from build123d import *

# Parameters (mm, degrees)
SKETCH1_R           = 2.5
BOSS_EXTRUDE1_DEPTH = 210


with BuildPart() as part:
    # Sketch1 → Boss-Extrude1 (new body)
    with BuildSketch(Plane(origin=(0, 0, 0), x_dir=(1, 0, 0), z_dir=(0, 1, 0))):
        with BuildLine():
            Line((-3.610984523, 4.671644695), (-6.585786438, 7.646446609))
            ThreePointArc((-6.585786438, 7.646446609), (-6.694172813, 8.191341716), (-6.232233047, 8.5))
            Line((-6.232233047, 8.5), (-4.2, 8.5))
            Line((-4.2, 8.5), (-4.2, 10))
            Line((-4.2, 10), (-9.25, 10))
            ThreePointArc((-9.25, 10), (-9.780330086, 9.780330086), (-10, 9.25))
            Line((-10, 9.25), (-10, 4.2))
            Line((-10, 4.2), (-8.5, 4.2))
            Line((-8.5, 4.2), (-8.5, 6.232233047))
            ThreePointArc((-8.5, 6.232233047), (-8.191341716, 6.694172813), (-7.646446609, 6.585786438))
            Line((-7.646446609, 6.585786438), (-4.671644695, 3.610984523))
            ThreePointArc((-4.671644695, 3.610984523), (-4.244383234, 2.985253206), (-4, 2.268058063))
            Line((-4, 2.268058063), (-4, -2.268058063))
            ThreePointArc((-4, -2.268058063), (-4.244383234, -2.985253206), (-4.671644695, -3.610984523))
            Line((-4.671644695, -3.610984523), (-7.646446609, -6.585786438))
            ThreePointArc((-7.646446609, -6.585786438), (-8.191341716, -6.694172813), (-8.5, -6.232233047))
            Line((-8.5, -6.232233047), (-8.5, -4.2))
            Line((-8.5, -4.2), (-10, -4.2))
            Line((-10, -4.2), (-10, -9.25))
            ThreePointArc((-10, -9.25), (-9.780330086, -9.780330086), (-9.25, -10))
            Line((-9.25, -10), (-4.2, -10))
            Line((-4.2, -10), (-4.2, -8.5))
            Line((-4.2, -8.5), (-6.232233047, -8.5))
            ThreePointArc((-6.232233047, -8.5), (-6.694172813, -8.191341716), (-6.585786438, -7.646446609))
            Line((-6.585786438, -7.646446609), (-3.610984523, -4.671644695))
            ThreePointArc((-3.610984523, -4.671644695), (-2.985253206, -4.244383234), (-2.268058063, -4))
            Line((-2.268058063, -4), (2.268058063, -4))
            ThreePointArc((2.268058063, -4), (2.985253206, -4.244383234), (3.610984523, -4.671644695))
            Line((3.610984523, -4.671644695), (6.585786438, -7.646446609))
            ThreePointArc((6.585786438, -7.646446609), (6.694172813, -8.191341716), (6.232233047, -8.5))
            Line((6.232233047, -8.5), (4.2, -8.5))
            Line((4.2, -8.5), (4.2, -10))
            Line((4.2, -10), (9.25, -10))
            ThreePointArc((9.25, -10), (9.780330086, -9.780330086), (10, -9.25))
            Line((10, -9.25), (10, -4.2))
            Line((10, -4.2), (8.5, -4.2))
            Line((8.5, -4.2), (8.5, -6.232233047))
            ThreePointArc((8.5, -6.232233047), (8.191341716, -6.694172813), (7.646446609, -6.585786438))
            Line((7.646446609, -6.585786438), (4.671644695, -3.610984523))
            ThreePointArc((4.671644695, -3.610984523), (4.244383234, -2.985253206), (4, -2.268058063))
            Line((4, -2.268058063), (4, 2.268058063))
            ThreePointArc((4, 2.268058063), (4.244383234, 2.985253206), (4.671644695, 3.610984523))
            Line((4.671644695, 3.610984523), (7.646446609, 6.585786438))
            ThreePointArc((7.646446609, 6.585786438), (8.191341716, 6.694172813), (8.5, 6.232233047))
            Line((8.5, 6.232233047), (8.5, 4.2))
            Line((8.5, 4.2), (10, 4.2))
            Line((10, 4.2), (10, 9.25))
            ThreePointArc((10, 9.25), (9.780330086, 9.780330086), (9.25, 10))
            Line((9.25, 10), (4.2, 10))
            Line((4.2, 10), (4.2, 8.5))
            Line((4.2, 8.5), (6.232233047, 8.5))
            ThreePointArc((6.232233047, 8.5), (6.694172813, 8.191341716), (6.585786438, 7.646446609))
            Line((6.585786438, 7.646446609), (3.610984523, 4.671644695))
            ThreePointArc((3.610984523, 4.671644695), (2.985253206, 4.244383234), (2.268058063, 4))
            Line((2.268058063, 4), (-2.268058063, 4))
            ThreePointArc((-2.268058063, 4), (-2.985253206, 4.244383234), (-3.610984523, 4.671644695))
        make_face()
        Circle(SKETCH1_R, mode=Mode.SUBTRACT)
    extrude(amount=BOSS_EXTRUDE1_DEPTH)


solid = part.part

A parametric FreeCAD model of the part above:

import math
import FreeCAD as App
import Part
import Sketcher
Q = App.Units.Quantity

doc = App.newDocument("Part")
body = doc.addObject("PartDesign::Body", "Body")

sketch1 = body.newObject("Sketcher::SketchObject", "Sketch")
sketch1.AttachmentSupport = (doc.getObject("XZ_Plane"), [""])
sketch1.MapMode = "FlatFace"
sketch1.addGeometry([
    Part.LineSegment(App.Vector(-3.610985, -4.671645, 0), App.Vector(-6.585786, -7.646447, 0)),
    Part.ArcOfCircle(Part.Circle(App.Vector(-6.232233, -8, 0), App.Vector(0, 0, 1), 0.5), math.radians(135), math.radians(270)),
    Part.LineSegment(App.Vector(-6.232233, -8.5, 0), App.Vector(-4.2, -8.5, 0)),
    Part.LineSegment(App.Vector(-4.2, -8.5, 0), App.Vector(-4.2, -10, 0)),
    Part.LineSegment(App.Vector(-4.2, -10, 0), App.Vector(-9.25, -10, 0)),
    Part.ArcOfCircle(Part.Circle(App.Vector(-9.25, -9.25, 0), App.Vector(0, 0, 1), 0.75), math.radians(180), math.radians(270)),
    Part.LineSegment(App.Vector(-10, -9.25, 0), App.Vector(-10, -4.2, 0)),
    Part.LineSegment(App.Vector(-10, -4.2, 0), App.Vector(-8.5, -4.2, 0)),
    Part.LineSegment(App.Vector(-8.5, -4.2, 0), App.Vector(-8.5, -6.232233, 0)),
    Part.ArcOfCircle(Part.Circle(App.Vector(-8, -6.232233, 0), App.Vector(0, 0, 1), 0.5), math.radians(-180), math.radians(-45)),
    Part.LineSegment(App.Vector(-7.646447, -6.585786, 0), App.Vector(-4.671645, -3.610985, 0)),
    Part.ArcOfCircle(Part.Circle(App.Vector(-6.755475, -1.729368, 0), App.Vector(0, 0, 1), 2.807638), math.radians(-42.080792), math.radians(-11.061698)),
    Part.LineSegment(App.Vector(-4, -2.268058, 0), App.Vector(-4, 2.268058, 0)),
    Part.ArcOfCircle(Part.Circle(App.Vector(-6.755475, 1.729368, 0), App.Vector(0, 0, 1), 2.807638), math.radians(11.061698), math.radians(42.080792)),
    Part.LineSegment(App.Vector(-4.671645, 3.610985, 0), App.Vector(-7.646447, 6.585786, 0)),
    Part.ArcOfCircle(Part.Circle(App.Vector(-8, 6.232233, 0), App.Vector(0, 0, 1), 0.5), math.radians(45), math.radians(180)),
    Part.LineSegment(App.Vector(-8.5, 6.232233, 0), App.Vector(-8.5, 4.2, 0)),
    Part.LineSegment(App.Vector(-8.5, 4.2, 0), App.Vector(-10, 4.2, 0)),
    Part.LineSegment(App.Vector(-10, 4.2, 0), App.Vector(-10, 9.25, 0)),
    Part.ArcOfCircle(Part.Circle(App.Vector(-9.25, 9.25, 0), App.Vector(0, 0, 1), 0.75), math.radians(90), math.radians(180)),
    Part.LineSegment(App.Vector(-9.25, 10, 0), App.Vector(-4.2, 10, 0)),
    Part.LineSegment(App.Vector(-4.2, 10, 0), App.Vector(-4.2, 8.5, 0)),
    Part.LineSegment(App.Vector(-4.2, 8.5, 0), App.Vector(-6.232233, 8.5, 0)),
    Part.ArcOfCircle(Part.Circle(App.Vector(-6.232233, 8, 0), App.Vector(0, 0, 1), 0.5), math.radians(90), math.radians(225)),
    Part.LineSegment(App.Vector(-6.585786, 7.646447, 0), App.Vector(-3.610985, 4.671645, 0)),
    Part.ArcOfCircle(Part.Circle(App.Vector(-1.729368, 6.755475, 0), App.Vector(0, 0, 1), 2.807638), math.radians(-132.080792), math.radians(-101.061698)),
    Part.LineSegment(App.Vector(-2.268058, 4, 0), App.Vector(2.268058, 4, 0)),
    Part.ArcOfCircle(Part.Circle(App.Vector(1.729368, 6.755475, 0), App.Vector(0, 0, 1), 2.807638), math.radians(-78.938302), math.radians(-47.919208)),
    Part.LineSegment(App.Vector(3.610985, 4.671645, 0), App.Vector(6.585786, 7.646447, 0)),
    Part.ArcOfCircle(Part.Circle(App.Vector(6.232233, 8, 0), App.Vector(0, 0, 1), 0.5), math.radians(-45), math.radians(90)),
    Part.LineSegment(App.Vector(6.232233, 8.5, 0), App.Vector(4.2, 8.5, 0)),
    Part.LineSegment(App.Vector(4.2, 8.5, 0), App.Vector(4.2, 10, 0)),
    Part.LineSegment(App.Vector(4.2, 10, 0), App.Vector(9.25, 10, 0)),
    Part.ArcOfCircle(Part.Circle(App.Vector(9.25, 9.25, 0), App.Vector(0, 0, 1), 0.75), math.radians(0), math.radians(90)),
    Part.LineSegment(App.Vector(10, 9.25, 0), App.Vector(10, 4.2, 0)),
    Part.LineSegment(App.Vector(10, 4.2, 0), App.Vector(8.5, 4.2, 0)),
    Part.LineSegment(App.Vector(8.5, 4.2, 0), App.Vector(8.5, 6.232233, 0)),
    Part.ArcOfCircle(Part.Circle(App.Vector(8, 6.232233, 0), App.Vector(0, 0, 1), 0.5), math.radians(0), math.radians(135)),
    Part.LineSegment(App.Vector(7.646447, 6.585786, 0), App.Vector(4.671645, 3.610985, 0)),
    Part.ArcOfCircle(Part.Circle(App.Vector(6.755475, 1.729368, 0), App.Vector(0, 0, 1), 2.807638), math.radians(137.919208), math.radians(168.938302)),
    Part.LineSegment(App.Vector(4, 2.268058, 0), App.Vector(4, -2.268058, 0)),
    Part.ArcOfCircle(Part.Circle(App.Vector(6.755475, -1.729368, 0), App.Vector(0, 0, 1), 2.807638), math.radians(-168.938302), math.radians(-137.919208)),
    Part.LineSegment(App.Vector(4.671645, -3.610985, 0), App.Vector(7.646447, -6.585786, 0)),
    Part.ArcOfCircle(Part.Circle(App.Vector(8, -6.232233, 0), App.Vector(0, 0, 1), 0.5), math.radians(-135), math.radians(0)),
    Part.LineSegment(App.Vector(8.5, -6.232233, 0), App.Vector(8.5, -4.2, 0)),
    Part.LineSegment(App.Vector(8.5, -4.2, 0), App.Vector(10, -4.2, 0)),
    Part.LineSegment(App.Vector(10, -4.2, 0), App.Vector(10, -9.25, 0)),
    Part.ArcOfCircle(Part.Circle(App.Vector(9.25, -9.25, 0), App.Vector(0, 0, 1), 0.75), math.radians(-90), math.radians(0)),
    Part.LineSegment(App.Vector(9.25, -10, 0), App.Vector(4.2, -10, 0)),
    Part.LineSegment(App.Vector(4.2, -10, 0), App.Vector(4.2, -8.5, 0)),
    Part.LineSegment(App.Vector(4.2, -8.5, 0), App.Vector(6.232233, -8.5, 0)),
    Part.ArcOfCircle(Part.Circle(App.Vector(6.232233, -8, 0), App.Vector(0, 0, 1), 0.5), math.radians(-90), math.radians(45)),
    Part.LineSegment(App.Vector(6.585786, -7.646447, 0), App.Vector(3.610985, -4.671645, 0)),
    Part.ArcOfCircle(Part.Circle(App.Vector(1.729368, -6.755475, 0), App.Vector(0, 0, 1), 2.807638), math.radians(47.919208), math.radians(78.938302)),
    Part.LineSegment(App.Vector(2.268058, -4, 0), App.Vector(-2.268058, -4, 0)),
    Part.ArcOfCircle(Part.Circle(App.Vector(-1.729368, -6.755475, 0), App.Vector(0, 0, 1), 2.807638), math.radians(101.061698), math.radians(132.080792)),
    Part.Circle(App.Vector(0, 0, 0), App.Vector(0, 0, 1), 2.5),
], False)
sketch1.addConstraint([
    Sketcher.Constraint("Tangent", 0, 2, 1, 1),
    Sketcher.Constraint("Tangent", 1, 2, 2, 1),
    Sketcher.Constraint("Coincident", 2, 2, 3, 1),
    Sketcher.Constraint("Coincident", 3, 2, 4, 1),
    Sketcher.Constraint("Tangent", 4, 2, 5, 2),
    Sketcher.Constraint("Tangent", 5, 1, 6, 1),
    Sketcher.Constraint("Coincident", 6, 2, 7, 1),
    Sketcher.Constraint("Coincident", 7, 2, 8, 1),
    Sketcher.Constraint("Tangent", 8, 2, 9, 1),
    Sketcher.Constraint("Tangent", 9, 2, 10, 1),
    Sketcher.Constraint("Coincident", 10, 2, 11, 1),
    Sketcher.Constraint("Coincident", 11, 2, 12, 1),
    Sketcher.Constraint("Coincident", 12, 2, 13, 1),
    Sketcher.Constraint("Coincident", 13, 2, 14, 1),
    Sketcher.Constraint("Tangent", 14, 2, 15, 1),
    Sketcher.Constraint("Tangent", 15, 2, 16, 1),
    Sketcher.Constraint("Coincident", 16, 2, 17, 1),
    Sketcher.Constraint("Coincident", 17, 2, 18, 1),
    Sketcher.Constraint("Tangent", 18, 2, 19, 2),
    Sketcher.Constraint("Tangent", 19, 1, 20, 1),
    Sketcher.Constraint("Coincident", 20, 2, 21, 1),
    Sketcher.Constraint("Coincident", 21, 2, 22, 1),
    Sketcher.Constraint("Tangent", 22, 2, 23, 1),
    Sketcher.Constraint("Tangent", 23, 2, 24, 1),
    Sketcher.Constraint("Coincident", 24, 2, 25, 1),
    Sketcher.Constraint("Coincident", 25, 2, 26, 1),
    Sketcher.Constraint("Coincident", 26, 2, 27, 1),
    Sketcher.Constraint("Coincident", 27, 2, 28, 1),
    Sketcher.Constraint("Tangent", 28, 2, 29, 1),
    Sketcher.Constraint("Tangent", 29, 2, 30, 1),
    Sketcher.Constraint("Coincident", 30, 2, 31, 1),
    Sketcher.Constraint("Coincident", 31, 2, 32, 1),
    Sketcher.Constraint("Tangent", 32, 2, 33, 2),
    Sketcher.Constraint("Tangent", 33, 1, 34, 1),
    Sketcher.Constraint("Coincident", 34, 2, 35, 1),
    Sketcher.Constraint("Coincident", 35, 2, 36, 1),
    Sketcher.Constraint("Tangent", 36, 2, 37, 1),
    Sketcher.Constraint("Tangent", 37, 2, 38, 1),
    Sketcher.Constraint("Coincident", 38, 2, 39, 1),
    Sketcher.Constraint("Coincident", 39, 2, 40, 1),
    Sketcher.Constraint("Coincident", 40, 2, 41, 1),
    Sketcher.Constraint("Coincident", 41, 2, 42, 1),
    Sketcher.Constraint("Tangent", 42, 2, 43, 1),
    Sketcher.Constraint("Tangent", 43, 2, 44, 1),
    Sketcher.Constraint("Coincident", 44, 2, 45, 1),
    Sketcher.Constraint("Coincident", 45, 2, 46, 1),
    Sketcher.Constraint("Tangent", 46, 2, 47, 2),
    Sketcher.Constraint("Tangent", 47, 1, 48, 1),
    Sketcher.Constraint("Coincident", 48, 2, 49, 1),
    Sketcher.Constraint("Coincident", 49, 2, 50, 1),
    Sketcher.Constraint("Tangent", 50, 2, 51, 1),
    Sketcher.Constraint("Tangent", 51, 2, 52, 1),
    Sketcher.Constraint("Coincident", 52, 2, 53, 1),
    Sketcher.Constraint("Coincident", 53, 2, 54, 1),
    Sketcher.Constraint("Coincident", 54, 2, 55, 1),
    Sketcher.Constraint("Coincident", 55, 2, 0, 1),
    Sketcher.Constraint("Horizontal", 2),
    Sketcher.Constraint("Vertical", 3),
    Sketcher.Constraint("Horizontal", 4),
    Sketcher.Constraint("Vertical", 6),
    Sketcher.Constraint("Horizontal", 7),
    Sketcher.Constraint("Vertical", 8),
    Sketcher.Constraint("Vertical", 12),
    Sketcher.Constraint("Vertical", 16),
    Sketcher.Constraint("Horizontal", 17),
    Sketcher.Constraint("Vertical", 18),
    Sketcher.Constraint("Horizontal", 20),
    Sketcher.Constraint("Vertical", 21),
    Sketcher.Constraint("Horizontal", 22),
    Sketcher.Constraint("Horizontal", 26),
    Sketcher.Constraint("Horizontal", 30),
    Sketcher.Constraint("Vertical", 31),
    Sketcher.Constraint("Horizontal", 32),
    Sketcher.Constraint("Vertical", 34),
    Sketcher.Constraint("Horizontal", 35),
    Sketcher.Constraint("Vertical", 36),
    Sketcher.Constraint("Vertical", 40),
    Sketcher.Constraint("Vertical", 44),
    Sketcher.Constraint("Horizontal", 45),
    Sketcher.Constraint("Vertical", 46),
    Sketcher.Constraint("Horizontal", 48),
    Sketcher.Constraint("Vertical", 49),
    Sketcher.Constraint("Horizontal", 50),
    Sketcher.Constraint("Horizontal", 54),
    Sketcher.Constraint("Coincident", 56, 3, -1, 1),
    Sketcher.Constraint("Equal", 1, 9),
    Sketcher.Constraint("Equal", 11, 13),
    Sketcher.Constraint("Equal", 9, 15),
    Sketcher.Constraint("Equal", 5, 19),
    Sketcher.Constraint("Equal", 15, 23),
    Sketcher.Constraint("Equal", 13, 25),
    Sketcher.Constraint("Equal", 25, 27),
    Sketcher.Constraint("Equal", 23, 29),
    Sketcher.Constraint("Equal", 19, 33),
    Sketcher.Constraint("Equal", 29, 37),
    Sketcher.Constraint("Equal", 27, 39),
    Sketcher.Constraint("Equal", 39, 41),
    Sketcher.Constraint("Equal", 37, 43),
    Sketcher.Constraint("Equal", 33, 47),
    Sketcher.Constraint("Equal", 43, 51),
    Sketcher.Constraint("Equal", 41, 53),
    Sketcher.Constraint("Equal", 53, 55),
    Sketcher.Constraint("Symmetric", 1, 3, 29, 3, -1, 1),
    Sketcher.Constraint("Symmetric", 5, 3, 33, 3, -1, 1),
    Sketcher.Constraint("Symmetric", 9, 3, 37, 3, -1, 1),
    Sketcher.Constraint("Symmetric", 11, 3, 39, 3, -1, 1),
    Sketcher.Constraint("Symmetric", 13, 3, 41, 3, -1, 1),
    Sketcher.Constraint("Symmetric", 15, 3, 43, 3, -1, 1),
    Sketcher.Constraint("Symmetric", 19, 3, 47, 3, -1, 1),
    Sketcher.Constraint("Symmetric", 23, 3, 51, 3, -1, 1),
    Sketcher.Constraint("Symmetric", 25, 3, 53, 3, -1, 1),
    Sketcher.Constraint("Symmetric", 27, 3, 55, 3, -1, 1),
    Sketcher.Constraint("Symmetric", 25, 3, 27, 3, -2),
    Sketcher.Constraint("Symmetric", 23, 3, 29, 3, -2),
    Sketcher.Constraint("Symmetric", 19, 3, 33, 3, -2),
    Sketcher.Constraint("Symmetric", 15, 3, 37, 3, -2),
    Sketcher.Constraint("Symmetric", 13, 3, 39, 3, -2),
    Sketcher.Constraint("Parallel", 0, 10),
    Sketcher.Constraint("Perpendicular", 10, 14),
    Sketcher.Constraint("Parallel", 14, 24),
    Sketcher.Constraint("Perpendicular", 24, 28),
    Sketcher.Constraint("Parallel", 28, 38),
    Sketcher.Constraint("Perpendicular", 38, 42),
    Sketcher.Constraint("Parallel", 42, 52),
    Sketcher.Constraint("Horizontal", 24, 2, 27, 2),
    Sketcher.Constraint("Horizontal", 17, 2, 34, 2),
    Sketcher.Constraint("Horizontal", 12, 2, 39, 2),
    Sketcher.Constraint("Horizontal", 7, 2, 44, 2),
    Sketcher.Constraint("Vertical", 3, 2, 20, 2),
    Sketcher.Constraint("Vertical", 31, 2, 48, 2),
    Sketcher.Constraint("Vertical", 26, 2, 53, 2),
    Sketcher.Constraint("Equal", 22, 30),
    Sketcher.Constraint("Equal", 45, 3),
    Sketcher.Constraint("Equal", 48, 6),
    Sketcher.Constraint("Equal", 50, 8),
    Sketcher.Constraint("Equal", 54, 12),
    Sketcher.Constraint("Equal", 8, 16),
    Sketcher.Constraint("Equal", 0, 10),
    Sketcher.Constraint("Diameter", 56, Q("5 mm")),
    Sketcher.Constraint("Radius", 1, Q("0.5 mm")),
    Sketcher.Constraint("Radius", 5, Q("0.75 mm")),
    Sketcher.Constraint("DistanceX", 7, 1, 7, 2, Q("1.5 mm")),
    Sketcher.Constraint("DistanceY", 1, 3, -1, 1, Q("8 mm")),
    Sketcher.Constraint("DistanceX", 9, 3, -1, 1, Q("8 mm")),
    Sketcher.Constraint("DistanceX", 11, 2, -1, 1, Q("4 mm")),
    Sketcher.Constraint("DistanceY", -1, 1, 25, 2, Q("4 mm")),
    Sketcher.Constraint("DistanceX", 4, 2, 4, 1, Q("5.05 mm")),
    Sketcher.Constraint("Radius", 11, Q("2.807638 mm")),
    Sketcher.Constraint("DistanceX", 2, 1, 2, 2, Q("2.032233 mm")),
    Sketcher.Constraint("DistanceX", 26, 1, 26, 2, Q("4.536116 mm")),
    Sketcher.Constraint("DistanceY", 11, 3, -1, 1, Q("1.729368 mm")),
])
pad1 = body.newObject("PartDesign::Pad", "Pad")
pad1.Profile = sketch1
pad1.Length = 210
pad1.Reversed = True

doc.recompute()
